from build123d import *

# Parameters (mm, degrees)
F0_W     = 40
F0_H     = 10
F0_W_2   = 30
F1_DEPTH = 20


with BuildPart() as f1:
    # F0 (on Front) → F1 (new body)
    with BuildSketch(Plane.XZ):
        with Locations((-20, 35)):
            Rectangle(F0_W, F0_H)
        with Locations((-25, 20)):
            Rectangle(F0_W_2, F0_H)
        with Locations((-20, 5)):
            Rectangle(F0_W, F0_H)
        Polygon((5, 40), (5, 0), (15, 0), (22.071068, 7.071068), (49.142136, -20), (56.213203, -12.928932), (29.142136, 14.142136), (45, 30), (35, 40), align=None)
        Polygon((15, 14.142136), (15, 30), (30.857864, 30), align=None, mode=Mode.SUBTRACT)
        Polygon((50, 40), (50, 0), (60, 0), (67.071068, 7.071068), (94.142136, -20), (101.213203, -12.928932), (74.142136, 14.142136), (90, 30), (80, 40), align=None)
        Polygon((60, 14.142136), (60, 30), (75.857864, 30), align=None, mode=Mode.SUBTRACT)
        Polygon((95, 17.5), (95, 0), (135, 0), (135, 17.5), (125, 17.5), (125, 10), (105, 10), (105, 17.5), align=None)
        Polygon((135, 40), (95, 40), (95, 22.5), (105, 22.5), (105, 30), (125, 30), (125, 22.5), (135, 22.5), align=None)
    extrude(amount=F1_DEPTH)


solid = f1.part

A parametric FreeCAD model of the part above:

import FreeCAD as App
import Part
import Sketcher
Q = App.Units.Quantity

doc = App.newDocument("Part")
body = doc.addObject("PartDesign::Body", "Body")
body.AllowCompound = True

# Sketch on XZ plane
sketch1 = body.newObject("Sketcher::SketchObject", "Sketch")
sketch1.AttachmentSupport = (doc.getObject("XZ_Plane"), [""])
sketch1.MapMode = "FlatFace"
sketch1.addGeometry(Part.LineSegment(App.Vector(-40, 40, 0), App.Vector(-40, 30, 0)), False)
sketch1.addGeometry(Part.LineSegment(App.Vector(-40, 30, 0), App.Vector(0, 30, 0)), False)
sketch1.addGeometry(Part.LineSegment(App.Vector(0, 30, 0), App.Vector(0, 40, 0)), False)
sketch1.addGeometry(Part.LineSegment(App.Vector(0, 40, 0), App.Vector(-40, 40, 0)), False)
sketch1.addGeometry(Part.LineSegment(App.Vector(-40, 25, 0), App.Vector(-40, 15, 0)), False)
sketch1.addGeometry(Part.LineSegment(App.Vector(-40, 15, 0), App.Vector(-10, 15, 0)), False)
sketch1.addGeometry(Part.LineSegment(App.Vector(-10, 15, 0), App.Vector(-10, 25, 0)), False)
sketch1.addGeometry(Part.LineSegment(App.Vector(-10, 25, 0), App.Vector(-40, 25, 0)), False)
sketch1.addGeometry(Part.LineSegment(App.Vector(-40, 10, 0), App.Vector(-40, 0, 0)), False)
sketch1.addGeometry(Part.LineSegment(App.Vector(-40, 0, 0), App.Vector(0, 0, 0)), False)
sketch1.addGeometry(Part.LineSegment(App.Vector(0, 0, 0), App.Vector(0, 10, 0)), False)
sketch1.addGeometry(Part.LineSegment(App.Vector(0, 10, 0), App.Vector(-40, 10, 0)), False)
sketch1.addGeometry(Part.LineSegment(App.Vector(5, 40, 0), App.Vector(5, 0, 0)), False)
sketch1.addGeometry(Part.LineSegment(App.Vector(5, 0, 0), App.Vector(15, 0, 0)), False)
sketch1.addGeometry(Part.LineSegment(App.Vector(15, 0, 0), App.Vector(22, 7, 0)), False)
sketch1.addGeometry(Part.LineSegment(App.Vector(22, 7, 0), App.Vector(49, -20, 0)), False)
sketch1.addGeometry(Part.LineSegment(App.Vector(49, -20, 0), App.Vector(56, -13, 0)), False)
sketch1.addGeometry(Part.LineSegment(App.Vector(56, -13, 0), App.Vector(29, 14, 0)), False)
sketch1.addGeometry(Part.LineSegment(App.Vector(29, 14, 0), App.Vector(45, 30, 0)), False)
sketch1.addGeometry(Part.LineSegment(App.Vector(45, 30, 0), App.Vector(35, 40, 0)), False)
sketch1.addGeometry(Part.LineSegment(App.Vector(35, 40, 0), App.Vector(5, 40, 0)), False)
sketch1.addGeometry(Part.LineSegment(App.Vector(31, 30, 0), App.Vector(15, 14, 0)), False)
sketch1.addGeometry(Part.LineSegment(App.Vector(15, 14, 0), App.Vector(15, 30, 0)), False)
sketch1.addGeometry(Part.LineSegment(App.Vector(15, 30, 0), App.Vector(31, 30, 0)), False)
sketch1.addGeometry(Part.LineSegment(App.Vector(50, 40, 0), App.Vector(50, 0, 0)), False)
sketch1.addGeometry(Part.LineSegment(App.Vector(50, 0, 0), App.Vector(60, 0, 0)), False)
sketch1.addGeometry(Part.LineSegment(App.Vector(60, 0, 0), App.Vector(67, 7, 0)), False)
sketch1.addGeometry(Part.LineSegment(App.Vector(67, 7, 0), App.Vector(94, -20, 0)), False)
sketch1.addGeometry(Part.LineSegment(App.Vector(94, -20, 0), App.Vector(101, -13, 0)), False)
sketch1.addGeometry(Part.LineSegment(App.Vector(101, -13, 0), App.Vector(74, 14, 0)), False)
sketch1.addGeometry(Part.LineSegment(App.Vector(74, 14, 0), App.Vector(90, 30, 0)), False)
sketch1.addGeometry(Part.LineSegment(App.Vector(90, 30, 0), App.Vector(80, 40, 0)), False)
sketch1.addGeometry(Part.LineSegment(App.Vector(80, 40, 0), App.Vector(50, 40, 0)), False)
sketch1.addGeometry(Part.LineSegment(App.Vector(76, 30, 0), App.Vector(60, 14, 0)), False)
sketch1.addGeometry(Part.LineSegment(App.Vector(60, 14, 0), App.Vector(60, 30, 0)), False)
sketch1.addGeometry(Part.LineSegment(App.Vector(60, 30, 0), App.Vector(76, 30, 0)), False)
sketch1.addGeometry(Part.LineSegment(App.Vector(95, 18, 0), App.Vector(95, 0, 0)), False)
sketch1.addGeometry(Part.LineSegment(App.Vector(95, 0, 0), App.Vector(135, 0, 0)), False)
sketch1.addGeometry(Part.LineSegment(App.Vector(135, 0, 0), App.Vector(135, 18, 0)), False)
sketch1.addGeometry(Part.LineSegment(App.Vector(135, 18, 0), App.Vector(125, 18, 0)), False)
sketch1.addGeometry(Part.LineSegment(App.Vector(125, 18, 0), App.Vector(125, 10, 0)), False)
sketch1.addGeometry(Part.LineSegment(App.Vector(125, 10, 0), App.Vector(105, 10, 0)), False)
sketch1.addGeometry(Part.LineSegment(App.Vector(105, 10, 0), App.Vector(105, 18, 0)), False)
sketch1.addGeometry(Part.LineSegment(App.Vector(105, 18, 0), App.Vector(95, 18, 0)), False)
sketch1.addGeometry(Part.LineSegment(App.Vector(135, 40, 0), App.Vector(95, 40, 0)), False)
sketch1.addGeometry(Part.LineSegment(App.Vector(95, 40, 0), App.Vector(95, 22, 0)), False)
sketch1.addGeometry(Part.LineSegment(App.Vector(95, 22, 0), App.Vector(105, 22, 0)), False)
sketch1.addGeometry(Part.LineSegment(App.Vector(105, 22, 0), App.Vector(105, 30, 0)), False)
sketch1.addGeometry(Part.LineSegment(App.Vector(105, 30, 0), App.Vector(125, 30, 0)), False)
sketch1.addGeometry(Part.LineSegment(App.Vector(125, 30, 0), App.Vector(125, 22, 0)), False)
sketch1.addGeometry(Part.LineSegment(App.Vector(125, 22, 0), App.Vector(135, 22, 0)), False)
sketch1.addGeometry(Part.LineSegment(App.Vector(135, 22, 0), App.Vector(135, 40, 0)), False)
sketch1.addConstraint(Sketcher.Constraint("Coincident", 0, 2, 1, 1))
sketch1.addConstraint(Sketcher.Constraint("Coincident", 1, 2, 2, 1))
sketch1.addConstraint(Sketcher.Constraint("Coincident", 2, 2, 3, 1))
sketch1.addConstraint(Sketcher.Constraint("Coincident", 3, 2, 0, 1))
sketch1.addConstraint(Sketcher.Constraint("Coincident", 4, 2, 5, 1))
sketch1.addConstraint(Sketcher.Constraint("Coincident", 5, 2, 6, 1))
sketch1.addConstraint(Sketcher.Constraint("Coincident", 6, 2, 7, 1))
sketch1.addConstraint(Sketcher.Constraint("Coincident", 7, 2, 4, 1))
sketch1.addConstraint(Sketcher.Constraint("Coincident", 8, 2, 9, 1))
sketch1.addConstraint(Sketcher.Constraint("Coincident", 9, 2, 10, 1))
sketch1.addConstraint(Sketcher.Constraint("Coincident", 10, 2, 11, 1))
sketch1.addConstraint(Sketcher.Constraint("Coincident", 11, 2, 8, 1))
sketch1.addConstraint(Sketcher.Constraint("Coincident", 12, 2, 13, 1))
sketch1.addConstraint(Sketcher.Constraint("Coincident", 13, 2, 14, 1))
sketch1.addConstraint(Sketcher.Constraint("Coincident", 14, 2, 15, 1))
sketch1.addConstraint(Sketcher.Constraint("Coincident", 15, 2, 16, 1))
sketch1.addConstraint(Sketcher.Constraint("Coincident", 16, 2, 17, 1))
sketch1.addConstraint(Sketcher.Constraint("Coincident", 17, 2, 18, 1))
sketch1.addConstraint(Sketcher.Constraint("Coincident", 18, 2, 19, 1))
sketch1.addConstraint(Sketcher.Constraint("Coincident", 19, 2, 20, 1))
sketch1.addConstraint(Sketcher.Constraint("Coincident", 20, 2, 12, 1))
sketch1.addConstraint(Sketcher.Constraint("Coincident", 21, 2, 22, 1))
sketch1.addConstraint(Sketcher.Constraint("Coincident", 22, 2, 23, 1))
sketch1.addConstraint(Sketcher.Constraint("Coincident", 23, 2, 21, 1))
sketch1.addConstraint(Sketcher.Constraint("Coincident", 24, 2, 25, 1))
sketch1.addConstraint(Sketcher.Constraint("Coincident", 25, 2, 26, 1))
sketch1.addConstraint(Sketcher.Constraint("Coincident", 26, 2, 27, 1))
sketch1.addConstraint(Sketcher.Constraint("Coincident", 27, 2, 28, 1))
sketch1.addConstraint(Sketcher.Constraint("Coincident", 28, 2, 29, 1))
sketch1.addConstraint(Sketcher.Constraint("Coincident", 29, 2, 30, 1))
sketch1.addConstraint(Sketcher.Constraint("Coincident", 30, 2, 31, 1))
sketch1.addConstraint(Sketcher.Constraint("Coincident", 31, 2, 32, 1))
sketch1.addConstraint(Sketcher.Constraint("Coincident", 32, 2, 24, 1))
sketch1.addConstraint(Sketcher.Constraint("Coincident", 33, 2, 34, 1))
sketch1.addConstraint(Sketcher.Constraint("Coincident", 34, 2, 35, 1))
sketch1.addConstraint(Sketcher.Constraint("Coincident", 35, 2, 33, 1))
sketch1.addConstraint(Sketcher.Constraint("Coincident", 36, 2, 37, 1))
sketch1.addConstraint(Sketcher.Constraint("Coincident", 37, 2, 38, 1))
sketch1.addConstraint(Sketcher.Constraint("Coincident", 38, 2, 39, 1))
sketch1.addConstraint(Sketcher.Constraint("Coincident", 39, 2, 40, 1))
sketch1.addConstraint(Sketcher.Constraint("Coincident", 40, 2, 41, 1))
sketch1.addConstraint(Sketcher.Constraint("Coincident", 41, 2, 42, 1))
sketch1.addConstraint(Sketcher.Constraint("Coincident", 42, 2, 43, 1))
sketch1.addConstraint(Sketcher.Constraint("Coincident", 43, 2, 36, 1))
sketch1.addConstraint(Sketcher.Constraint("Coincident", 44, 2, 45, 1))
sketch1.addConstraint(Sketcher.Constraint("Coincident", 45, 2, 46, 1))
sketch1.addConstraint(Sketcher.Constraint("Coincident", 46, 2, 47, 1))
sketch1.addConstraint(Sketcher.Constraint("Coincident", 47, 2, 48, 1))
sketch1.addConstraint(Sketcher.Constraint("Coincident", 48, 2, 49, 1))
sketch1.addConstraint(Sketcher.Constraint("Coincident", 49, 2, 50, 1))
sketch1.addConstraint(Sketcher.Constraint("Coincident", 50, 2, 51, 1))
sketch1.addConstraint(Sketcher.Constraint("Coincident", 51, 2, 44, 1))
sketch1.addConstraint(Sketcher.Constraint("Vertical", 0))
sketch1.addConstraint(Sketcher.Constraint("Horizontal", 1))
sketch1.addConstraint(Sketcher.Constraint("Vertical", 2))
sketch1.addConstraint(Sketcher.Constraint("Horizontal", 3))
sketch1.addConstraint(Sketcher.Constraint("Vertical", 4))
sketch1.addConstraint(Sketcher.Constraint("Horizontal", 5))
sketch1.addConstraint(Sketcher.Constraint("Vertical", 6))
sketch1.addConstraint(Sketcher.Constraint("Horizontal", 7))
sketch1.addConstraint(Sketcher.Constraint("Vertical", 8))
sketch1.addConstraint(Sketcher.Constraint("Horizontal", 9))
sketch1.addConstraint(Sketcher.Constraint("Vertical", 10))
sketch1.addConstraint(Sketcher.Constraint("Horizontal", 11))
sketch1.addConstraint(Sketcher.Constraint("Vertical", 12))
sketch1.addConstraint(Sketcher.Constraint("Horizontal", 13))
sketch1.addConstraint(Sketcher.Constraint("Horizontal", 20))
sketch1.addConstraint(Sketcher.Constraint("Vertical", 22))
sketch1.addConstraint(Sketcher.Constraint("Horizontal", 23))
sketch1.addConstraint(Sketcher.Constraint("Vertical", 24))
sketch1.addConstraint(Sketcher.Constraint("Horizontal", 25))
sketch1.addConstraint(Sketcher.Constraint("Horizontal", 32))
sketch1.addConstraint(Sketcher.Constraint("Vertical", 34))
sketch1.addConstraint(Sketcher.Constraint("Horizontal", 35))
sketch1.addConstraint(Sketcher.Constraint("Vertical", 36))
sketch1.addConstraint(Sketcher.Constraint("Horizontal", 37))
sketch1.addConstraint(Sketcher.Constraint("Vertical", 38))
sketch1.addConstraint(Sketcher.Constraint("Horizontal", 39))
sketch1.addConstraint(Sketcher.Constraint("Vertical", 40))
sketch1.addConstraint(Sketcher.Constraint("Horizontal", 41))
sketch1.addConstraint(Sketcher.Constraint("Vertical", 42))
sketch1.addConstraint(Sketcher.Constraint("Horizontal", 43))
sketch1.addConstraint(Sketcher.Constraint("Horizontal", 44))
sketch1.addConstraint(Sketcher.Constraint("Vertical", 45))
sketch1.addConstraint(Sketcher.Constraint("Horizontal", 46))
sketch1.addConstraint(Sketcher.Constraint("Vertical", 47))
sketch1.addConstraint(Sketcher.Constraint("Horizontal", 48))
sketch1.addConstraint(Sketcher.Constraint("Vertical", 49))
sketch1.addConstraint(Sketcher.Constraint("Horizontal", 50))
sketch1.addConstraint(Sketcher.Constraint("Vertical", 51))
sketch1.addConstraint(Sketcher.Constraint("Coincident", 9, 2, -1, 1))
sketch1.addConstraint(Sketcher.Constraint("PointOnObject", 1, 2, -2))
sketch1.addConstraint(Sketcher.Constraint("PointOnObject", 12, 2, -1))
sketch1.addConstraint(Sketcher.Constraint("PointOnObject", 24, 2, -1))
sketch1.addConstraint(Sketcher.Constraint("PointOnObject", 36, 2, -1))
sketch1.addConstraint(Sketcher.Constraint("Perpendicular", 14, 15))
sketch1.addConstraint(Sketcher.Constraint("Perpendicular", 15, 16))
sketch1.addConstraint(Sketcher.Constraint("Perpendicular", 16, 17))
sketch1.addConstraint(Sketcher.Constraint("Perpendicular", 17, 18))
sketch1.addConstraint(Sketcher.Constraint("Perpendicular", 18, 19))
sketch1.addConstraint(Sketcher.Constraint("Perpendicular", 19, 21))
sketch1.addConstraint(Sketcher.Constraint("Parallel", 21, 26))
sketch1.addConstraint(Sketcher.Constraint("Perpendicular", 26, 27))
sketch1.addConstraint(Sketcher.Constraint("Perpendicular", 27, 28))
sketch1.addConstraint(Sketcher.Constraint("Perpendicular", 28, 29))
sketch1.addConstraint(Sketcher.Constraint("Perpendicular", 29, 30))
sketch1.addConstraint(Sketcher.Constraint("Perpendicular", 30, 31))
sketch1.addConstraint(Sketcher.Constraint("Perpendicular", 31, 33))
sketch1.addConstraint(Sketcher.Constraint("Horizontal", 1, 2, 18, 2))
sketch1.addConstraint(Sketcher.Constraint("Horizontal", 3, 2, 19, 2))
sketch1.addConstraint(Sketcher.Constraint("Horizontal", 17, 2, 21, 2))
sketch1.addConstraint(Sketcher.Constraint("Horizontal", 18, 2, 22, 2))
sketch1.addConstraint(Sketcher.Constraint("Horizontal", 14, 2, 26, 2))
sketch1.addConstraint(Sketcher.Constraint("Horizontal", 15, 2, 27, 2))
sketch1.addConstraint(Sketcher.Constraint("Horizontal", 16, 2, 28, 2))
sketch1.addConstraint(Sketcher.Constraint("Horizontal", 21, 2, 29, 2))
sketch1.addConstraint(Sketcher.Constraint("Horizontal", 23, 2, 30, 2))
sketch1.addConstraint(Sketcher.Constraint("Horizontal", 20, 2, 31, 2))
sketch1.addConstraint(Sketcher.Constraint("Horizontal", 29, 2, 33, 2))
sketch1.addConstraint(Sketcher.Constraint("Horizontal", 30, 2, 34, 2))
sketch1.addConstraint(Sketcher.Constraint("Horizontal", 11, 2, 40, 2))
sketch1.addConstraint(Sketcher.Constraint("Horizontal", 39, 2, 42, 2))
sketch1.addConstraint(Sketcher.Constraint("Horizontal", 32, 2, 44, 2))
sketch1.addConstraint(Sketcher.Constraint("Horizontal", 35, 2, 47, 2))
sketch1.addConstraint(Sketcher.Constraint("Horizontal", 46, 2, 49, 2))
sketch1.addConstraint(Sketcher.Constraint("Vertical", 3, 2, 4, 2))
sketch1.addConstraint(Sketcher.Constraint("Vertical", 7, 2, 8, 2))
sketch1.addConstraint(Sketcher.Constraint("Vertical", 13, 2, 21, 2))
sketch1.addConstraint(Sketcher.Constraint("Vertical", 25, 2, 33, 2))
sketch1.addConstraint(Sketcher.Constraint("Vertical", 43, 2, 44, 2))
sketch1.addConstraint(Sketcher.Constraint("Vertical", 42, 2, 46, 2))
sketch1.addConstraint(Sketcher.Constraint("Vertical", 40, 2, 48, 2))
sketch1.addConstraint(Sketcher.Constraint("Vertical", 38, 2, 50, 2))
sketch1.addConstraint(Sketcher.Constraint("Equal", 7, 20))
sketch1.addConstraint(Sketcher.Constraint("Equal", 13, 25))
sketch1.addConstraint(Sketcher.Constraint("Equal", 11, 37))
sketch1.addConstraint(Sketcher.Constraint("Equal", 25, 39))
sketch1.addConstraint(Sketcher.Constraint("Equal", 39, 43))
sketch1.addConstraint(Sketcher.Constraint("Equal", 50, 0))
sketch1.addConstraint(Sketcher.Constraint("Equal", 2, 4))
sketch1.addConstraint(Sketcher.Constraint("Equal", 6, 8))
sketch1.addConstraint(Sketcher.Constraint("Equal", 44, 12))
sketch1.addConstraint(Sketcher.Constraint("Equal", 35, 22))
sketch1.addConstraint(Sketcher.Constraint("Equal", 38, 45))
sketch1.addConstraint(Sketcher.Constraint("Equal", 14, 16))
sketch1.addConstraint(Sketcher.Constraint("Equal", 15, 17))
sketch1.addConstraint(Sketcher.Constraint("DistanceX", 1, 1, 1, 2, Q("40 mm")))
sketch1.addConstraint(Sketcher.Constraint("DistanceX", 5, 1, 5, 2, Q("30 mm")))
sketch1.addConstraint(Sketcher.Constraint("Distance", 14, Q("10 mm")))
sketch1.addConstraint(Sketcher.Constraint("DistanceY", 36, 2, 36, 1, Q("17.5 mm")))
sketch1.addConstraint(Sketcher.Constraint("DistanceY", -1, 1, 4, 2, Q("15 mm")))
sketch1.addConstraint(Sketcher.Constraint("DistanceX", -1, 1, 12, 2, Q("5 mm")))
sketch1.addConstraint(Sketcher.Constraint("DistanceY", 15, 2, -1, 1, Q("20 mm")))
sketch1.addConstraint(Sketcher.Constraint("DistanceX", -1, 1, 24, 2, Q("50 mm")))
sketch1.addConstraint(Sketcher.Constraint("DistanceX", -1, 1, 36, 2, Q("95 mm")))
pad1 = body.newObject("PartDesign::Pad", "Pad")
pad1.Profile = sketch1
pad1.Length = 20

doc.recompute()
